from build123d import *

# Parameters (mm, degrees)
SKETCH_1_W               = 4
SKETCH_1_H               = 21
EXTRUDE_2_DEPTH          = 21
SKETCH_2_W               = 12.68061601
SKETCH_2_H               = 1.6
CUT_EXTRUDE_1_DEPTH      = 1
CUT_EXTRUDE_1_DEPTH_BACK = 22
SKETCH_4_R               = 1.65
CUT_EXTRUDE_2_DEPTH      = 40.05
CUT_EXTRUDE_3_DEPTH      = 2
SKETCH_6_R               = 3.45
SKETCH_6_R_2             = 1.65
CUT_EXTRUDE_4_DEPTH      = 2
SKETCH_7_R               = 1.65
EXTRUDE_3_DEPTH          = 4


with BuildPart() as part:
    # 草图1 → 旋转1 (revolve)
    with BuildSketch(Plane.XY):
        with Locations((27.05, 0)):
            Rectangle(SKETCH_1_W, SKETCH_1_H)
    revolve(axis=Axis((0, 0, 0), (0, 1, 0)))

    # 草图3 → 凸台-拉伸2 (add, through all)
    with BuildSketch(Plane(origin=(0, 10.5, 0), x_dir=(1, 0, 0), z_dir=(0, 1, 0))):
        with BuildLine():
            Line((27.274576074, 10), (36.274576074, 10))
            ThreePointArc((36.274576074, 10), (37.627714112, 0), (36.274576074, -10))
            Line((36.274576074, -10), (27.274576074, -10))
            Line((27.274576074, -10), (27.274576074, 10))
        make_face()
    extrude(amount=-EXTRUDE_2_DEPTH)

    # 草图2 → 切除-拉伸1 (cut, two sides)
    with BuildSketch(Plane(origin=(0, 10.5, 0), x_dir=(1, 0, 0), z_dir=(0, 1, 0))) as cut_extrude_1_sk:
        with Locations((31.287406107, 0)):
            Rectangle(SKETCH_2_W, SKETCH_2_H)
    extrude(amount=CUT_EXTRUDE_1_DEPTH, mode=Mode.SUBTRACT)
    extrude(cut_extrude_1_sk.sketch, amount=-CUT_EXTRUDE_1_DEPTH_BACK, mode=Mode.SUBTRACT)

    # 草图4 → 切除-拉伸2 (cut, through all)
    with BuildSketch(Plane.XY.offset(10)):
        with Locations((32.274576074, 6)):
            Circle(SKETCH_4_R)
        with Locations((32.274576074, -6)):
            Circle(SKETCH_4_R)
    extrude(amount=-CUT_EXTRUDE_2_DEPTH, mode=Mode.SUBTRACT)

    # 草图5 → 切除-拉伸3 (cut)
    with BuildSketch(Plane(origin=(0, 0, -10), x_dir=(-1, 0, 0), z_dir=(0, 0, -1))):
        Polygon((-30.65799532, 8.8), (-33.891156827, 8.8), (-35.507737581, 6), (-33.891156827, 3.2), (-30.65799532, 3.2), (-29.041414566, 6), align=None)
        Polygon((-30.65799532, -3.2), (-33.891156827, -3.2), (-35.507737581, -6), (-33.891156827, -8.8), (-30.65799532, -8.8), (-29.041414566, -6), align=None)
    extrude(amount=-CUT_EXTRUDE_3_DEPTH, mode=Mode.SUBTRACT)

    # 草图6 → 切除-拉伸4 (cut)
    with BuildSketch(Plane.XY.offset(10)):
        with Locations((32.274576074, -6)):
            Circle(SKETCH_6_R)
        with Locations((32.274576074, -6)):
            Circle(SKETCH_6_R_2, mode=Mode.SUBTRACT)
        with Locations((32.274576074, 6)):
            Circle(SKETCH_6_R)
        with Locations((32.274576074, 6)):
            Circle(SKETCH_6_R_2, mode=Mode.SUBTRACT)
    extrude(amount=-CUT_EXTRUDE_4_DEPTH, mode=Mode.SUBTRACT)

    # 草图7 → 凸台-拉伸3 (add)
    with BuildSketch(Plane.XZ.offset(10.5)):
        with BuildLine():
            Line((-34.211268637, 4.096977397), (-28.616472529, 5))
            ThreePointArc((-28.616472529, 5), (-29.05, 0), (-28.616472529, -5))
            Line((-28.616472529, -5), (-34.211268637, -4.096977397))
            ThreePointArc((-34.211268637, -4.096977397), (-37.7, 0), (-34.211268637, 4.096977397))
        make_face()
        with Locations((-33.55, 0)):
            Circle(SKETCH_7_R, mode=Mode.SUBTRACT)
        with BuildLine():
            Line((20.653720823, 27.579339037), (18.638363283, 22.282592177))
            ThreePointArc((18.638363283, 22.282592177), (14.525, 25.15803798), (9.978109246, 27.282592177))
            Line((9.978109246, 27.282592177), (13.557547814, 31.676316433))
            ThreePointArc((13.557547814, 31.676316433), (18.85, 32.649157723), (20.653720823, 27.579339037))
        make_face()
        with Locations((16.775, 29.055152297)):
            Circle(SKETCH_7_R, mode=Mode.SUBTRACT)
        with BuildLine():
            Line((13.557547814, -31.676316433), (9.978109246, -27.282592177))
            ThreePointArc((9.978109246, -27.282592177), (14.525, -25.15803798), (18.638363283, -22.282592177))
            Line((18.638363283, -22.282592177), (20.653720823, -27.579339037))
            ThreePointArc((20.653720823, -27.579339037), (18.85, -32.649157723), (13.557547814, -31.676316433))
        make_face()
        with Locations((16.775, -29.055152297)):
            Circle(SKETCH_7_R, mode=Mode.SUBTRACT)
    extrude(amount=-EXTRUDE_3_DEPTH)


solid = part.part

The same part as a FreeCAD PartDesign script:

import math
import FreeCAD as App
import Part
import Sketcher

V = App.Vector
Q = App.Units.Quantity


def add_polygon(sketch, points):
    """Adds a closed chain of lines whose ends are joined by coincident constraints."""
    first, n = sketch.GeometryCount, len(points)
    for a, b in zip(points, points[1:] + points[:1]):
        sketch.addGeometry(Part.LineSegment(App.Vector(*a, 0), App.Vector(*b, 0)), False)
    for i in range(n):
        sketch.addConstraint(Sketcher.Constraint("Coincident", first + i, 2, first + (i + 1) % n, 1))

doc = App.newDocument("Part")
params = doc.addObject("Spreadsheet::Sheet", "Params")
for row, (alias, value) in enumerate([
    ("sketch1_width", "4 mm"),
    ("sketch1_height", "21 mm"),
    ("revolution_angle", "360 deg"),
    ("sketch2_width", "9 mm"),
    ("sketch2_height", "20 mm"),
    ("pad1_length", "21 mm"),
    ("sketch3_height", "1.6 mm"),
    ("sketch4_diameter", "3.3 mm"),
    ("pocket3_length", "2 mm"),
    ("sketch6_diameter", "6.9 mm"),
    ("sketch6_diameter2", "3.3 mm"),
    ("pocket4_length", "2 mm"),
    ("sketch7_diameter", "3.3 mm"),
    ("sketch7_radius", "4.15 mm"),
    ("sketch7_radius2", "29.05 mm"),
    ("pad2_length", "4 mm"),
], start=1):
    params.set(f"A{row}", alias)
    params.set(f"B{row}", "=" + value)
    params.setAlias(f"B{row}", alias)

body = doc.addObject("PartDesign::Body", "Body")

# Sketch on XY plane
sketch1 = doc.addObject("Sketcher::SketchObject", "Sketch")
body.addObject(sketch1)
sketch1.AttachmentSupport = (doc.XY_Plane, [""])
sketch1.MapMode = "FlatFace"
add_polygon(sketch1, [(25.1, 10.5), (25.1, -10.5), (29.1, -10.5), (29.1, 10.5)])  # lines 0-3
sketch1.addConstraint([
    Sketcher.Constraint("Vertical", 0),
    Sketcher.Constraint("Horizontal", 1),
    Sketcher.Constraint("Vertical", 2),
    Sketcher.Constraint("Horizontal", 3),
    Sketcher.Constraint("DistanceX", 1, 1, 1, 2, Q("4 mm")),
    Sketcher.Constraint("DistanceY", 0, 2, 0, 1, Q("21 mm")),
    Sketcher.Constraint("DistanceY", 0, 2, -1, 1, Q("10.5 mm")),
    Sketcher.Constraint("DistanceX", -1, 1, 0, 2, Q("25.05 mm")),
])
sketch1.setExpression("Constraints[8]", "Params.sketch1_width")
sketch1.setExpression("Constraints[9]", "Params.sketch1_height")
revolution = doc.addObject("PartDesign::Revolution", "Revolution")
body.addObject(revolution)
revolution.Profile = sketch1
revolution.ReferenceAxis = (sketch1, ["V_Axis"])
revolution.setExpression("Angle", "Params.revolution_angle")

# Sketch on XZ plane
sketch2 = doc.addObject("Sketcher::SketchObject", "Sketch001")
body.addObject(sketch2)
sketch2.AttachmentSupport = (doc.XZ_Plane, [""])
sketch2.MapMode = "FlatFace"
sketch2.AttachmentOffset = App.Placement(V(0, 0, -10.5), App.Rotation())
sketch2.addGeometry([
    Part.LineSegment(V(36, -10, 0), V(27, -10, 0)),
    Part.LineSegment(V(27, -10, 0), V(27, 10, 0)),
    Part.LineSegment(V(27, 10, 0), V(36, 10, 0)),
    Part.ArcOfCircle(Part.Circle(V(0, 0, 0), V(0, 0, 1), 38), math.radians(-15), math.radians(15)),
], False)
sketch2.addConstraint([
    Sketcher.Constraint("Coincident", 0, 2, 1, 1),
    Sketcher.Constraint("Coincident", 1, 2, 2, 1),
    Sketcher.Constraint("Coincident", 2, 2, 3, 2),
    Sketcher.Constraint("Coincident", 3, 1, 0, 1),
    Sketcher.Constraint("Horizontal", 0),
    Sketcher.Constraint("Vertical", 1),
    Sketcher.Constraint("Horizontal", 2),
    Sketcher.Constraint("Coincident", 3, 3, -1, 1),
    Sketcher.Constraint("Vertical", 2, 2, 3, 1),
    Sketcher.Constraint("DistanceX", 0, 2, 0, 1, Q("9 mm")),
    Sketcher.Constraint("DistanceY", 1, 1, 1, 2, Q("20 mm")),
    Sketcher.Constraint("Radius", 3, Q("37.627714 mm")),
])
sketch2.setExpression("Constraints[9]", "Params.sketch2_width")
sketch2.setExpression("Constraints[10]", "Params.sketch2_height")
pad1 = doc.addObject("PartDesign::Pad", "Pad")
body.addObject(pad1)
pad1.Profile = sketch2
pad1.setExpression("Length", "Params.pad1_length")

# Sketch on XZ plane
sketch3 = doc.addObject("Sketcher::SketchObject", "Sketch002")
body.addObject(sketch3)
sketch3.AttachmentSupport = (doc.XZ_Plane, [""])
sketch3.MapMode = "FlatFace"
sketch3.AttachmentOffset = App.Placement(V(0, 0, -10.5), App.Rotation())
add_polygon(sketch3, [(24.9, -0.8), (24.9, 0.8), (37.6, 0.8), (37.6, -0.8)])  # lines 0-3
sketch3.addConstraint([
    Sketcher.Constraint("Vertical", 0),
    Sketcher.Constraint("Horizontal", 1),
    Sketcher.Constraint("Vertical", 2),
    Sketcher.Constraint("Horizontal", 3),
    Sketcher.Constraint("DistanceY", 0, 1, 0, 2, Q("1.6 mm")),
    Sketcher.Constraint("DistanceY", -1, 1, 0, 2, Q("0.8 mm")),
    Sketcher.Constraint("DistanceX", -1, 1, 0, 2, Q("24.947098 mm")),
    Sketcher.Constraint("DistanceX", 1, 1, 1, 2, Q("12.680616 mm")),
])
sketch3.setExpression("Constraints[8]", "Params.sketch3_height")
pocket1 = doc.addObject("PartDesign::Pocket", "Pocket")
body.addObject(pocket1)
pocket1.Profile = sketch3
pocket1.Type = "ThroughAll"
pocket1.Midplane = True

# Sketch on XY plane
sketch4 = doc.addObject("Sketcher::SketchObject", "Sketch003")
body.addObject(sketch4)
sketch4.AttachmentSupport = (doc.XY_Plane, [""])
sketch4.MapMode = "FlatFace"
sketch4.AttachmentOffset = App.Placement(V(0, 0, 10), App.Rotation())
sketch4.addGeometry([
    Part.Circle(V(32.3, 6, 0), V(0, 0, 1), 1.6),
    Part.Circle(V(32.3, -6, 0), V(0, 0, 1), 1.6),
], False)
sketch4.addConstraint([
    Sketcher.Constraint("Equal", 0, 1),
    Sketcher.Constraint("Symmetric", 0, 3, 1, 3, -1),
    Sketcher.Constraint("Diameter", 0, Q("3.3 mm")),
    Sketcher.Constraint("DistanceY", -1, 1, 0, 3, Q("6 mm")),
    Sketcher.Constraint("DistanceX", -1, 1, 0, 3, Q("32.274576 mm")),
])
sketch4.setExpression("Constraints[2]", "Params.sketch4_diameter")
pocket2 = doc.addObject("PartDesign::Pocket", "Pocket001")
body.addObject(pocket2)
pocket2.Profile = sketch4
pocket2.Type = "ThroughAll"

# Sketch on XY plane
sketch5 = doc.addObject("Sketcher::SketchObject", "Sketch004")
body.addObject(sketch5)
sketch5.AttachmentSupport = (doc.XY_Plane, [""])
sketch5.MapMode = "FlatFace"
sketch5.AttachmentOffset = App.Placement(V(0, 0, -10), App.Rotation())
add_polygon(sketch5, [(30.7, 8.8), (33.9, 8.8), (35.5, 6), (33.9, 3.2), (30.7, 3.2), (29, 6)])  # lines 0-5
add_polygon(sketch5, [(30.7, -3.2), (33.9, -3.2), (35.5, -6), (33.9, -8.8), (30.7, -8.8), (29, -6)])  # lines 6-11
sketch5.addConstraint([
    Sketcher.Constraint("Horizontal", 0),
    Sketcher.Constraint("Horizontal", 3),
    Sketcher.Constraint("Horizontal", 6),
    Sketcher.Constraint("Horizontal", 9),
    Sketcher.Constraint("Symmetric", 2, 2, 6, 2, -1),
    Sketcher.Constraint("Symmetric", 1, 2, 7, 2, -1),
    Sketcher.Constraint("Symmetric", 0, 2, 8, 2, -1),
    Sketcher.Constraint("Symmetric", 4, 2, 10, 2, -1),
    Sketcher.Constraint("Parallel", 1, 4),
    Sketcher.Constraint("Parallel", 2, 5),
    Sketcher.Constraint("Parallel", 4, 7),
    Sketcher.Constraint("Parallel", 7, 10),
    Sketcher.Constraint("Parallel", 8, 11),
    Sketcher.Constraint("Horizontal", 1, 2, 4, 2),
    Sketcher.Constraint("Vertical", 0, 2, 2, 2),
    Sketcher.Constraint("Angle", 1, Q("-60 deg")),
    Sketcher.Constraint("DistanceY", -1, 1, 1, 2, Q("6 mm")),
    Sketcher.Constraint("DistanceY", -1, 1, 0, 2, Q("8.8 mm")),
    Sketcher.Constraint("DistanceX", 0, 1, 0, 2, Q("3.233162 mm")),
    Sketcher.Constraint("DistanceX", -1, 1, 0, 2, Q("33.891157 mm")),
])
pocket3 = doc.addObject("PartDesign::Pocket", "Pocket002")
body.addObject(pocket3)
pocket3.Profile = sketch5
pocket3.setExpression("Length", "Params.pocket3_length")
pocket3.Reversed = True

# Sketch on XY plane
sketch6 = doc.addObject("Sketcher::SketchObject", "Sketch005")
body.addObject(sketch6)
sketch6.AttachmentSupport = (doc.XY_Plane, [""])
sketch6.MapMode = "FlatFace"
sketch6.AttachmentOffset = App.Placement(V(0, 0, 10), App.Rotation())
sketch6.addGeometry([
    Part.Circle(V(32.3, -6, 0), V(0, 0, 1), 3.5),
    Part.Circle(V(32.3, -6, 0), V(0, 0, 1), 1.6),
    Part.Circle(V(32.3, 6, 0), V(0, 0, 1), 3.5),
    Part.Circle(V(32.3, 6, 0), V(0, 0, 1), 1.6),
], False)
sketch6.addConstraint([
    Sketcher.Constraint("Coincident", 1, 3, 0, 3),
    Sketcher.Constraint("Coincident", 3, 3, 2, 3),
    Sketcher.Constraint("Equal", 0, 2),
    Sketcher.Constraint("Equal", 1, 3),
    Sketcher.Constraint("Symmetric", 0, 3, 2, 3, -1),
    Sketcher.Constraint("Diameter", 0, Q("6.9 mm")),
    Sketcher.Constraint("Diameter", 1, Q("3.3 mm")),
    Sketcher.Constraint("DistanceY", 0, 3, -1, 1, Q("6 mm")),
    Sketcher.Constraint("DistanceX", -1, 1, 0, 3, Q("32.274576 mm")),
])
sketch6.setExpression("Constraints[5]", "Params.sketch6_diameter")
sketch6.setExpression("Constraints[6]", "Params.sketch6_diameter2")
pocket4 = doc.addObject("PartDesign::Pocket", "Pocket003")
body.addObject(pocket4)
pocket4.Profile = sketch6
pocket4.setExpression("Length", "Params.pocket4_length")

# Sketch on XZ plane
sketch7 = doc.addObject("Sketcher::SketchObject", "Sketch006")
body.addObject(sketch7)
sketch7.AttachmentSupport = (doc.XZ_Plane, [""])
sketch7.MapMode = "FlatFace"
sketch7.AttachmentOffset = App.Placement(V(0, 0, 10.5), App.Rotation())
sketch7.addGeometry([
    Part.LineSegment(V(-28.6, 5, 0), V(-34.2, 4.1, 0)),  # 0
    Part.ArcOfCircle(Part.Circle(V(-33.5, 0, 0), V(0, 0, 1), 4.2), math.radians(99), math.radians(261)),  # 1
    Part.LineSegment(V(-34.2, -4.1, 0), V(-28.6, -5, 0)),  # 2
    Part.ArcOfCircle(Part.Circle(V(0, 0, 0), V(0, 0, 1), 29.1), math.radians(170.09), math.radians(189.91)),  # 3
    Part.Circle(V(-33.5, 0, 0), V(0, 0, 1), 1.6),  # 4
    Part.LineSegment(V(18.6, 22.3, 0), V(20.7, 27.6, 0)),  # 5
    Part.ArcOfCircle(Part.Circle(V(16.8, 29.1, 0), V(0, 0, 1), 4.2), math.radians(-21), math.radians(141)),  # 6
    Part.LineSegment(V(13.6, 31.7, 0), V(10, 27.3, 0)),  # 7
    Part.ArcOfCircle(Part.Circle(V(0, 0, 0), V(0, 0, 1), 29.1), math.radians(50.09), math.radians(69.91)),  # 8
    Part.Circle(V(16.8, 29.1, 0), V(0, 0, 1), 1.6),  # 9
    Part.LineSegment(V(10, -27.3, 0), V(13.6, -31.7, 0)),  # 10
    Part.ArcOfCircle(Part.Circle(V(16.8, -29.1, 0), V(0, 0, 1), 4.2), math.radians(-141), math.radians(21)),  # 11
    Part.LineSegment(V(20.7, -27.6, 0), V(18.6, -22.3, 0)),  # 12
    Part.ArcOfCircle(Part.Circle(V(0, 0, 0), V(0, 0, 1), 29.1), math.radians(-69.91), math.radians(-50.09)),  # 13
    Part.Circle(V(16.8, -29.1, 0), V(0, 0, 1), 1.6),  # 14
], False)
sketch7.addConstraint([
    Sketcher.Constraint("Tangent", 0, 2, 1, 1),
    Sketcher.Constraint("Tangent", 1, 2, 2, 1),
    Sketcher.Constraint("Coincident", 2, 2, 3, 2),
    Sketcher.Constraint("Coincident", 3, 1, 0, 1),
    Sketcher.Constraint("Tangent", 5, 2, 6, 1),
    Sketcher.Constraint("Tangent", 6, 2, 7, 1),
    Sketcher.Constraint("Coincident", 7, 2, 8, 2),
    Sketcher.Constraint("Coincident", 8, 1, 5, 1),
    Sketcher.Constraint("Tangent", 10, 2, 11, 1),
    Sketcher.Constraint("Tangent", 11, 2, 12, 1),
    Sketcher.Constraint("Coincident", 12, 2, 13, 2),
    Sketcher.Constraint("Coincident", 13, 1, 10, 1),
    Sketcher.Constraint("Coincident", 3, 3, -1, 1),
    Sketcher.Constraint("Coincident", 8, 3, -1, 1),
    Sketcher.Constraint("Coincident", 13, 3, -1, 1),
    Sketcher.Constraint("Coincident", 4, 3, 1, 3),
    Sketcher.Constraint("Coincident", 9, 3, 6, 3),
    Sketcher.Constraint("Coincident", 14, 3, 11, 3),
    Sketcher.Constraint("Equal", 1, 6),
    Sketcher.Constraint("Equal", 3, 8),
    Sketcher.Constraint("Equal", 4, 9),
    Sketcher.Constraint("Equal", 6, 11),
    Sketcher.Constraint("Equal", 8, 13),
    Sketcher.Constraint("Equal", 9, 14),
    Sketcher.Constraint("Symmetric", 6, 3, 11, 3, -1),
    Sketcher.Constraint("Symmetric", 0, 2, 1, 2, -1),
    Sketcher.Constraint("Vertical", 6, 2, 10, 2),
    Sketcher.Constraint("Vertical", 5, 2, 11, 2),
    Sketcher.Constraint("Equal", 2, 5),
    Sketcher.Constraint("Equal", 5, 7),
    Sketcher.Constraint("Diameter", 4, Q("3.3 mm")),
    Sketcher.Constraint("Radius", 1, Q("4.15 mm")),
    Sketcher.Constraint("Radius", 3, Q("29.05 mm")),
    Sketcher.Constraint("DistanceY", 2, 2, -1, 1, Q("5 mm")),
    Sketcher.Constraint("DistanceY", 8, 1, 7, 2, Q("5 mm")),
    Sketcher.Constraint("DistanceX", 1, 3, -1, 1, Q("33.55 mm")),
    Sketcher.Constraint("DistanceX", -1, 1, 6, 3, Q("16.775 mm")),
])
sketch7.setExpression("Constraints[30]", "Params.sketch7_diameter")
sketch7.setExpression("Constraints[31]", "Params.sketch7_radius")
sketch7.setExpression("Constraints[32]", "Params.sketch7_radius2")
pad2 = doc.addObject("PartDesign::Pad", "Pad001")
body.addObject(pad2)
pad2.Profile = sketch7
pad2.setExpression("Length", "Params.pad2_length")
pad2.Reversed = True

doc.recompute()
